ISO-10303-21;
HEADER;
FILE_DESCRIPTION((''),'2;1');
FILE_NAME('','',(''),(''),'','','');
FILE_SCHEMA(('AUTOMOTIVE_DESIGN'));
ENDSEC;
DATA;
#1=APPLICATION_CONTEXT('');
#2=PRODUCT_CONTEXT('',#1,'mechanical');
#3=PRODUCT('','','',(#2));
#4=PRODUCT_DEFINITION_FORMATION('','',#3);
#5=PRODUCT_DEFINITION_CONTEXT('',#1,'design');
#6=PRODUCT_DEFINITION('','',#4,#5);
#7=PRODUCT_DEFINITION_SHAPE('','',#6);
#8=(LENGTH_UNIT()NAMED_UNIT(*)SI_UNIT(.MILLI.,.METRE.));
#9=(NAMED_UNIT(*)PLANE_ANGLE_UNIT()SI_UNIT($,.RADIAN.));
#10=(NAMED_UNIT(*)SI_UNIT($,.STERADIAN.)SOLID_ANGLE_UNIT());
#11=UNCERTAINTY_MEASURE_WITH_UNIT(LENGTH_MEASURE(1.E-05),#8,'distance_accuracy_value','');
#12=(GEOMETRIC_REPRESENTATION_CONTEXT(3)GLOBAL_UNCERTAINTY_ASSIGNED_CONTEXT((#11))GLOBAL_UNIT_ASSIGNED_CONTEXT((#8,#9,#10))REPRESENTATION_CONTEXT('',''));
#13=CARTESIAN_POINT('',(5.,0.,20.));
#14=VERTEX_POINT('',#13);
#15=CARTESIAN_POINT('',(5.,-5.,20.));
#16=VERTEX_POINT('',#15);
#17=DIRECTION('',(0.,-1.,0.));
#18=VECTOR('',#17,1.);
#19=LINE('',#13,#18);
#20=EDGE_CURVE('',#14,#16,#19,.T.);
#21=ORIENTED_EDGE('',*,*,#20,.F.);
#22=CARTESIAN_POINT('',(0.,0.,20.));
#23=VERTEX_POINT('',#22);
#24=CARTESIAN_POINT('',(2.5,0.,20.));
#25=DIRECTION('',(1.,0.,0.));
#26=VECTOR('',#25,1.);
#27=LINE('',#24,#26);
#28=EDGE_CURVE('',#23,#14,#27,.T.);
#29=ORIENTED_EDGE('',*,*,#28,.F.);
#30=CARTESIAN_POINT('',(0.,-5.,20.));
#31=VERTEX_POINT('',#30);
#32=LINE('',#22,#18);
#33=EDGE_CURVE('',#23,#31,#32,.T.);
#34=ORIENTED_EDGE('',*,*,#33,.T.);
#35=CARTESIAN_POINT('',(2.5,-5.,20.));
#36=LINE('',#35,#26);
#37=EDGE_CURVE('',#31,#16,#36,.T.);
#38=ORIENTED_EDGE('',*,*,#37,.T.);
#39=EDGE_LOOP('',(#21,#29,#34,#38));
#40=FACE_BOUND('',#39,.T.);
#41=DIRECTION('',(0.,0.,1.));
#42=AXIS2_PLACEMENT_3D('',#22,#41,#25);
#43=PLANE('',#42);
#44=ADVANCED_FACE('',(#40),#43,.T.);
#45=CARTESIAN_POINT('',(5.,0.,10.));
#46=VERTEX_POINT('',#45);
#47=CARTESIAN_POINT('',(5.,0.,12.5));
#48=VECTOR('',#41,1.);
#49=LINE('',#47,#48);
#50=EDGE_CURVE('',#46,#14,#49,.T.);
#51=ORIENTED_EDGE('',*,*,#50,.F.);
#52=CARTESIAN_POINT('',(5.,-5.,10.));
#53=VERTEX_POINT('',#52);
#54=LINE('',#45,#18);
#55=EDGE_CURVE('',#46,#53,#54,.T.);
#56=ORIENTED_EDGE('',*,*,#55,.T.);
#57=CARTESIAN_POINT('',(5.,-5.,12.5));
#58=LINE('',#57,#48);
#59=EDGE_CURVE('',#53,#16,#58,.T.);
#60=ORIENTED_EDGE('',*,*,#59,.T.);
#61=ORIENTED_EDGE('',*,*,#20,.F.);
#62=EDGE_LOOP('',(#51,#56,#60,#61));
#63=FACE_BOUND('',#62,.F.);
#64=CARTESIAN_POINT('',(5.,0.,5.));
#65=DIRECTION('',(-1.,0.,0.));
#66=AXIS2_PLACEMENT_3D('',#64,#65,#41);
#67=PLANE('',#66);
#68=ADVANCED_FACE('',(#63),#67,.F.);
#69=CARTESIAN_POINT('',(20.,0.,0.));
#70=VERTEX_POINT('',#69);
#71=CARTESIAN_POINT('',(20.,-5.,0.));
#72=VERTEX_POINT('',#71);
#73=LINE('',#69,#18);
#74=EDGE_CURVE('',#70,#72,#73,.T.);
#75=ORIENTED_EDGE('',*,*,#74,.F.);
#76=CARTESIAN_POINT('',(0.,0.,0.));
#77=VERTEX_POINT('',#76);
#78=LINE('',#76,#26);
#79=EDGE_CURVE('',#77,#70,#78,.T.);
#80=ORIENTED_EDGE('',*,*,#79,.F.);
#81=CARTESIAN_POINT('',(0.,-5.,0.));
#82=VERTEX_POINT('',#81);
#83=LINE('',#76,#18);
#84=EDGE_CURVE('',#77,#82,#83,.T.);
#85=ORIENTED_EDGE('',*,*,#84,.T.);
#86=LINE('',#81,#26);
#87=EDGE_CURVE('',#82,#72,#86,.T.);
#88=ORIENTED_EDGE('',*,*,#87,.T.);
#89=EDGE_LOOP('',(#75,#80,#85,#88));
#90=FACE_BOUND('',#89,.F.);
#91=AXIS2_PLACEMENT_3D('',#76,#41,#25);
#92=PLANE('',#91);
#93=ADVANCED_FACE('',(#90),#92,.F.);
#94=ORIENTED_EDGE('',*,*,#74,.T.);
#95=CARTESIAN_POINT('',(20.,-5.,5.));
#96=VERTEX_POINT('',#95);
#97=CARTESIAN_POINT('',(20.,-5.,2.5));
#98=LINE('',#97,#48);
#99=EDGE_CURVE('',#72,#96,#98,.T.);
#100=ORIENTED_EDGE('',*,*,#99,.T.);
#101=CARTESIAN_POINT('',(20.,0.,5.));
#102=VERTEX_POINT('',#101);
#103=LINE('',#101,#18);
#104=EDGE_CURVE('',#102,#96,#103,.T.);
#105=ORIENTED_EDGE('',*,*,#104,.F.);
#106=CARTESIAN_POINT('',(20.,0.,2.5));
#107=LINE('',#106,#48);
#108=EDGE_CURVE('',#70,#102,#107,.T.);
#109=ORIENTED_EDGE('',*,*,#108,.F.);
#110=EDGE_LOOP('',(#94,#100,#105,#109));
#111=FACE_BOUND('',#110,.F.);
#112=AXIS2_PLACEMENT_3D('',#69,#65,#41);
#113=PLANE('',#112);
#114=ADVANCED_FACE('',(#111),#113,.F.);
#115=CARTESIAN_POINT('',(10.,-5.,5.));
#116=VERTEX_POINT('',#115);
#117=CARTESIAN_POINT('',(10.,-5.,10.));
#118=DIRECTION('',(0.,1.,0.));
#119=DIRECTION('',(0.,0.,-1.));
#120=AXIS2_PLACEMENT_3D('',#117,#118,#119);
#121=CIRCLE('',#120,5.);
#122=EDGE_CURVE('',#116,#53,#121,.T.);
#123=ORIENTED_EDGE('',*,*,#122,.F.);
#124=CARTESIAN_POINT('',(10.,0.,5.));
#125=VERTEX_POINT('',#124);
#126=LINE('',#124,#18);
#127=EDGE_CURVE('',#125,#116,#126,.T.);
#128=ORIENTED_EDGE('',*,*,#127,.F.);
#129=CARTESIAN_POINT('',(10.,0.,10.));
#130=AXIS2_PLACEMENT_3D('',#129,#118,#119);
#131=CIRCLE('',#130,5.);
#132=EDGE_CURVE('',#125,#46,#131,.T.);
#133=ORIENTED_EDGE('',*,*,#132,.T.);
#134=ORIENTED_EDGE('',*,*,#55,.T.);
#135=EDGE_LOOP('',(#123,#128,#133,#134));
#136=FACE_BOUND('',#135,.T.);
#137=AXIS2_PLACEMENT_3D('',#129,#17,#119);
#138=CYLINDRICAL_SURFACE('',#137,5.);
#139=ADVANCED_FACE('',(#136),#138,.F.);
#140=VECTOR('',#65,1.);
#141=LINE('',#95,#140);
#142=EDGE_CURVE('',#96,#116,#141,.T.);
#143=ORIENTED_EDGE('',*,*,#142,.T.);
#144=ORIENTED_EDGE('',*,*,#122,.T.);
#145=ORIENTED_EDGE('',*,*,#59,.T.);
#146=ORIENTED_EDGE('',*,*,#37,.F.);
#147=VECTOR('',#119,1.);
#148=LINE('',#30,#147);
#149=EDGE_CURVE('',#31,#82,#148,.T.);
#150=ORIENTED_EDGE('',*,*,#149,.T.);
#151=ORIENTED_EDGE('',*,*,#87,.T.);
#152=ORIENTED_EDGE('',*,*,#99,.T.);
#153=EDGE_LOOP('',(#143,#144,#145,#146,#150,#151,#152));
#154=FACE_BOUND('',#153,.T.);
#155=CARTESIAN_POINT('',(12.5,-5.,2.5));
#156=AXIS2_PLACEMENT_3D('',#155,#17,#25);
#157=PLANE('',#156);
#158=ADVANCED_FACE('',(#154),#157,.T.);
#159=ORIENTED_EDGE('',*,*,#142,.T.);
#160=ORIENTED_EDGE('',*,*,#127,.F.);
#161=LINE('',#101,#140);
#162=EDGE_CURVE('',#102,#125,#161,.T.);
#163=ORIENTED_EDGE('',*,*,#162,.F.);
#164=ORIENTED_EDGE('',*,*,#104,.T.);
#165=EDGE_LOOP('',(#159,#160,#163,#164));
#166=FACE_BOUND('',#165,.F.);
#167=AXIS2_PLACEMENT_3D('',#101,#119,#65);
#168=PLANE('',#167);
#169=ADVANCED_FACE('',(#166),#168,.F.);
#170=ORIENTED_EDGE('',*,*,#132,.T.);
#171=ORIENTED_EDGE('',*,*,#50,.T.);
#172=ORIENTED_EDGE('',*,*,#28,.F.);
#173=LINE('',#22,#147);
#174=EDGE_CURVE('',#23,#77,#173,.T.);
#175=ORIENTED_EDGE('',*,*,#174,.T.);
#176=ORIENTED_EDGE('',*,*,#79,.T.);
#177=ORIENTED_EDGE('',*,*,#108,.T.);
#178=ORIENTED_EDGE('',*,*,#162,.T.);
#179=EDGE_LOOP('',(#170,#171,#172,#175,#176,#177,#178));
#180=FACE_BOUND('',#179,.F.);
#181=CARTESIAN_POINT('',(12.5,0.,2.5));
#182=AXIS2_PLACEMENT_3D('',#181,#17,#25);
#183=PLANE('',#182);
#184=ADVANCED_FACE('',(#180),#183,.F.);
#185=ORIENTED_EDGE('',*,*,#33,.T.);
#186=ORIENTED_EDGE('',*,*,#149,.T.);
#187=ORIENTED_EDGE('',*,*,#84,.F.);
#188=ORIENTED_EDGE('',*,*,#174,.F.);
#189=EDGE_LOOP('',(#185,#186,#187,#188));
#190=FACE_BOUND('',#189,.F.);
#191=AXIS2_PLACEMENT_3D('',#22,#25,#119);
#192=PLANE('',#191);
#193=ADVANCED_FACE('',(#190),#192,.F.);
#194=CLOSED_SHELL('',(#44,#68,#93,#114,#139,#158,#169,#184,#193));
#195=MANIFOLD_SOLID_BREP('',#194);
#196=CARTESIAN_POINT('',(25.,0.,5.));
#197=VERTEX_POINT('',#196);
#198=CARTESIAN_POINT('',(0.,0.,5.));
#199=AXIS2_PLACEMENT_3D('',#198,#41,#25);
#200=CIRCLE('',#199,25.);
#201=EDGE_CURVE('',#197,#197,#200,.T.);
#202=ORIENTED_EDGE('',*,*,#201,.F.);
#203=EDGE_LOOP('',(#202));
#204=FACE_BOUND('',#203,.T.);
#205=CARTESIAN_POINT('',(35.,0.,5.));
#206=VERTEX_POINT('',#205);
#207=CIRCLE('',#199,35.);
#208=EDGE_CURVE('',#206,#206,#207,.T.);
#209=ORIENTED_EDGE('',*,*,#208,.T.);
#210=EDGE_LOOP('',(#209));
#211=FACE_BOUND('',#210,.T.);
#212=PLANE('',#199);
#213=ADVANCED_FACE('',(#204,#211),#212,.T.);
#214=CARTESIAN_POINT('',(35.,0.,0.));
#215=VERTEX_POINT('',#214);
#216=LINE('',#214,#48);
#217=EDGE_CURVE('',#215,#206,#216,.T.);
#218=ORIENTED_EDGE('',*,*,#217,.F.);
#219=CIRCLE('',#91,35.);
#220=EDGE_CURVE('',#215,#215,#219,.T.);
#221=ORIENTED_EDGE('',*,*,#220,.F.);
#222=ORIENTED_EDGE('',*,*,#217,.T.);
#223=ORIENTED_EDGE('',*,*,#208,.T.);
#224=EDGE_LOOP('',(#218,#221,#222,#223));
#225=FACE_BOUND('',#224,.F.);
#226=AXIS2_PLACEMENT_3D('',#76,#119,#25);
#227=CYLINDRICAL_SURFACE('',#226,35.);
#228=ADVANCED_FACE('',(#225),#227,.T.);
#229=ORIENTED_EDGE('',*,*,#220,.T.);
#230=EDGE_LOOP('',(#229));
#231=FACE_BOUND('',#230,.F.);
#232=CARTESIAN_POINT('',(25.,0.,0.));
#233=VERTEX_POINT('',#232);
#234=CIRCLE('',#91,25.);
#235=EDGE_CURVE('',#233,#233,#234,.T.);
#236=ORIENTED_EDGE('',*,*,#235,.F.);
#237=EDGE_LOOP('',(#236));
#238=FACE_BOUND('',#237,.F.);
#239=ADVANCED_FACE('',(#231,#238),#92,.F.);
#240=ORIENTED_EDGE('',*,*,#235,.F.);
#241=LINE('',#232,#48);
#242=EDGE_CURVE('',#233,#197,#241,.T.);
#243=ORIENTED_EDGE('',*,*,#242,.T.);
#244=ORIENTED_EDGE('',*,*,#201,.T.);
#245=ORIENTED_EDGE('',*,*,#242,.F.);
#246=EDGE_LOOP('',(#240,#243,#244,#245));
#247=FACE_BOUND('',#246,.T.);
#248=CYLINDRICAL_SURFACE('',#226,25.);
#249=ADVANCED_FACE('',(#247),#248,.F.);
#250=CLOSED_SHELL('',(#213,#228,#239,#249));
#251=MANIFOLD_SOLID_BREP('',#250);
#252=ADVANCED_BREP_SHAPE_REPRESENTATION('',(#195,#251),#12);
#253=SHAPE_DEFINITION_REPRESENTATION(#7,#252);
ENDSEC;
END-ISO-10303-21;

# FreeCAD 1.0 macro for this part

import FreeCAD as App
import Part
import Sketcher


def edges_at(feature, points):
    """Names of the edges that pass closest to the given points."""
    edges = feature.Shape.Edges
    near = lambda p: min(range(len(edges)), key=lambda i: edges[i].distToShape(Part.Vertex(*p))[0])
    return sorted({f"Edge{near(p) + 1}" for p in points})


def add_polygon(sketch, points):
    """Adds a closed chain of lines whose ends are joined by coincident constraints."""
    first, n = sketch.GeometryCount, len(points)
    for a, b in zip(points, points[1:] + points[:1]):
        sketch.addGeometry(Part.LineSegment(App.Vector(*a, 0), App.Vector(*b, 0)), False)
    for i in range(n):
        sketch.addConstraint(Sketcher.Constraint("Coincident", first + i, 2, first + (i + 1) % n, 1))

doc = App.newDocument("Part")
params = doc.addObject("Spreadsheet::Sheet", "Params")
for row, (alias, value) in enumerate([
    ("sketch1_diameter", "70 mm"),
    ("sketch1_diameter2", "50 mm"),
    ("pad1_length", "5 mm"),
    ("sketch2_width", "15 mm"),
    ("sketch2_width2", "5 mm"),
    ("pad2_length", "5 mm"),
    ("fillet_radius", "5 mm"),
], start=1):
    params.set(f"A{row}", alias)
    params.set(f"B{row}", "=" + value)
    params.setAlias(f"B{row}", alias)

body = doc.addObject("PartDesign::Body", "Body")

sketch1 = body.newObject("Sketcher::SketchObject", "Sketch")
sketch1.AttachmentSupport = (doc.getObject("XY_Plane"), [""])
sketch1.MapMode = "FlatFace"
sketch1.addGeometry(Part.Circle(App.Vector(0, 0, 0), App.Vector(0, 0, 1), 35), False)
sketch1.addGeometry(Part.Circle(App.Vector(0, 0, 0), App.Vector(0, 0, 1), 25), False)
sketch1.addConstraint(Sketcher.Constraint("Coincident", 0, 3, -1, 1))
sketch1.addConstraint(Sketcher.Constraint("Coincident", 1, 3, -1, 1))
sketch1.addConstraint(Sketcher.Constraint("Diameter", 0, 70.0))
sketch1.addConstraint(Sketcher.Constraint("Diameter", 1, 50.0))
sketch1.setExpression("Constraints[2]", "Params.sketch1_diameter")
sketch1.setExpression("Constraints[3]", "Params.sketch1_diameter2")
pad1 = body.newObject("PartDesign::Pad", "Pad")
pad1.Profile = sketch1
pad1.setExpression("Length", "Params.pad1_length")
body2 = doc.addObject("PartDesign::Body", "Body001")

sketch2 = body2.newObject("Sketcher::SketchObject", "Sketch001")
sketch2.AttachmentSupport = (doc.getObject("XZ_Plane001"), [""])
sketch2.MapMode = "FlatFace"
add_polygon(sketch2, [(20, 0), (20, 5), (5, 5), (5, 20), (0, 20), (0, 0)])
sketch2.addConstraint(Sketcher.Constraint("Vertical", 0))
sketch2.addConstraint(Sketcher.Constraint("Horizontal", 1))
sketch2.addConstraint(Sketcher.Constraint("Vertical", 2))
sketch2.addConstraint(Sketcher.Constraint("Horizontal", 3))
sketch2.addConstraint(Sketcher.Constraint("Vertical", 4))
sketch2.addConstraint(Sketcher.Constraint("Horizontal", 5))
sketch2.addConstraint(Sketcher.Constraint("Coincident", 4, 2, -1, 1))
sketch2.addConstraint(Sketcher.Constraint("Equal", 3, 0))
sketch2.addConstraint(Sketcher.Constraint("Equal", 1, 2))
sketch2.addConstraint(Sketcher.Constraint("DistanceX", 1, 2, 1, 1, 15.0))
sketch2.addConstraint(Sketcher.Constraint("DistanceX", 3, 2, 3, 1, 5.0))
sketch2.setExpression("Constraints[15]", "Params.sketch2_width")
sketch2.setExpression("Constraints[16]", "Params.sketch2_width2")
pad2 = body2.newObject("PartDesign::Pad", "Pad001")
pad2.Profile = sketch2
pad2.setExpression("Length", "Params.pad2_length")
doc.recompute()

fillet = body2.newObject("PartDesign::Fillet", "Fillet")
fillet.Base = (pad2, edges_at(pad2, [(5, -2.5, 5)]))
fillet.setExpression("Radius", "Params.fillet_radius")

doc.recompute()
